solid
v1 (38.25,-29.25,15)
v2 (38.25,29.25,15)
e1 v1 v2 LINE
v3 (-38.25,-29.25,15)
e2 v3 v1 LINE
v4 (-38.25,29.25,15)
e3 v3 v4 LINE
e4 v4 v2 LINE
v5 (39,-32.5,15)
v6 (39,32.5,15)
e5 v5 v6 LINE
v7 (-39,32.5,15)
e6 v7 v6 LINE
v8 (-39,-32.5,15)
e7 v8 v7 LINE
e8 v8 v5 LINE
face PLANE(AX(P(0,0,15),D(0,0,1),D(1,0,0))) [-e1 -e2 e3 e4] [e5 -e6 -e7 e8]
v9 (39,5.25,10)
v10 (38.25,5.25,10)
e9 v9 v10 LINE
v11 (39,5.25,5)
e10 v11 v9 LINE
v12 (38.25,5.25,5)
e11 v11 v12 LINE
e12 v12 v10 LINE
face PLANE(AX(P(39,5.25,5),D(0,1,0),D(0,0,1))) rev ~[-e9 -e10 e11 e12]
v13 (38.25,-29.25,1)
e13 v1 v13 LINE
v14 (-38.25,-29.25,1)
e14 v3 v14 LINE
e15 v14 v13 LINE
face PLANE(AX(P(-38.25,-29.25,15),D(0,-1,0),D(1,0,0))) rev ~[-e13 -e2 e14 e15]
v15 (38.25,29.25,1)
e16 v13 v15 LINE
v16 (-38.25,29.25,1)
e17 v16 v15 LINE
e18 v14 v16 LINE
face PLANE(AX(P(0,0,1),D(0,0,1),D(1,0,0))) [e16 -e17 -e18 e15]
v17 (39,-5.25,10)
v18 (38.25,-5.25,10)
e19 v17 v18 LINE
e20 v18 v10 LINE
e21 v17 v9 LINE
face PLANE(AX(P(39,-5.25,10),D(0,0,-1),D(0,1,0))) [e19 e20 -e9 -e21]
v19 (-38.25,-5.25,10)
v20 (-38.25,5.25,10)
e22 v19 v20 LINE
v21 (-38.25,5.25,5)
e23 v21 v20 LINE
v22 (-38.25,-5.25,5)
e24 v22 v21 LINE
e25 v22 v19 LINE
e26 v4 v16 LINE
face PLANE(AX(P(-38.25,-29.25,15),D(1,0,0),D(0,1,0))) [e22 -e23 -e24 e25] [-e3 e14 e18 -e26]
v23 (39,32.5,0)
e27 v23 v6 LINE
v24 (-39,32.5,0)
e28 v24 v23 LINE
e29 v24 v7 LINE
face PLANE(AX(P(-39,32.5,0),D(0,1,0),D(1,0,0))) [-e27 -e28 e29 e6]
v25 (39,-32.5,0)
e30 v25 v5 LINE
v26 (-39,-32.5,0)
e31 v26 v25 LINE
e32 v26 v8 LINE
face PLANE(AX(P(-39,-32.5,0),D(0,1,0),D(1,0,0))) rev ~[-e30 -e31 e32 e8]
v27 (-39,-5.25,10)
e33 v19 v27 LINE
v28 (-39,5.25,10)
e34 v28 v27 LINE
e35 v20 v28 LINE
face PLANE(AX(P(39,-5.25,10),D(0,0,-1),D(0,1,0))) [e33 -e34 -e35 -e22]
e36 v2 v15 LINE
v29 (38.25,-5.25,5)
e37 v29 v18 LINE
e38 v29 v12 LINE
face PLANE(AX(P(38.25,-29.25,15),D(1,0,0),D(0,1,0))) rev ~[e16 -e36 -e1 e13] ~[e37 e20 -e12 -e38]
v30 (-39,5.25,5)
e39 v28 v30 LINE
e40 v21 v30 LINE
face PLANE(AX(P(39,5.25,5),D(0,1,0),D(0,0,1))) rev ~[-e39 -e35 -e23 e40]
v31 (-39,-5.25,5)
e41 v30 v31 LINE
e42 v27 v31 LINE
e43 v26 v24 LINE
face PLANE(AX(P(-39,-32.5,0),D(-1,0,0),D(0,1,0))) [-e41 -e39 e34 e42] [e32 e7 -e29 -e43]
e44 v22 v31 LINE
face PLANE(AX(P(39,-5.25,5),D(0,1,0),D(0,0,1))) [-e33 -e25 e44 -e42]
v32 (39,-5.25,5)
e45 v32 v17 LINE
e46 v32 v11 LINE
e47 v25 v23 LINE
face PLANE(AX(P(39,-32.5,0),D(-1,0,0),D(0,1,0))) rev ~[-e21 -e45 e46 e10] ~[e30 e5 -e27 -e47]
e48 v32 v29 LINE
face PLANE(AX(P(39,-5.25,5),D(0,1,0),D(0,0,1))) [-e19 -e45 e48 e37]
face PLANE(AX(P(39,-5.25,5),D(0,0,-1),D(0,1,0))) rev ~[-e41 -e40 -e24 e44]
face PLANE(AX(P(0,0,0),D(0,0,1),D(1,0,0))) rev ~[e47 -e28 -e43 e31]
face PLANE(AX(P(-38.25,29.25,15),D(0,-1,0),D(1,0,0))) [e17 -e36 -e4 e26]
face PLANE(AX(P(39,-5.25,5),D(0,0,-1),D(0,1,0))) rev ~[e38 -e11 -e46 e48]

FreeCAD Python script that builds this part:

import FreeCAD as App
import Part
import Sketcher
from FreeCAD import Vector
Q = App.Units.Quantity


def add_polygon(sketch, points):
    """Adds a closed chain of lines whose ends are joined by coincident constraints."""
    first, n = sketch.GeometryCount, len(points)
    for a, b in zip(points, points[1:] + points[:1]):
        sketch.addGeometry(Part.LineSegment(App.Vector(*a, 0), App.Vector(*b, 0)), False)
    for i in range(n):
        sketch.addConstraint(Sketcher.Constraint("Coincident", first + i, 2, first + (i + 1) % n, 1))

doc = App.newDocument("Part")
body = doc.addObject("PartDesign::Body", "Body")

# Sketch on XY plane
sketch1 = doc.addObject("Sketcher::SketchObject", "Sketch")
body.addObject(sketch1)
sketch1.AttachmentSupport = (doc.XY_Plane, [""])
sketch1.MapMode = "FlatFace"
add_polygon(sketch1, [(-39, 32), (-39, -32), (39, -32), (39, 32)])  # lines 0-3
sketch1.addConstraint([
    Sketcher.Constraint("Vertical", 0),
    Sketcher.Constraint("Horizontal", 1),
    Sketcher.Constraint("Vertical", 2),
    Sketcher.Constraint("Horizontal", 3),
    Sketcher.Constraint("Symmetric", 0, 2, 2, 2, -1, 1),
    Sketcher.Constraint("DistanceX", 1, 1, 1, 2, Q("78 mm")),
    Sketcher.Constraint("DistanceY", 0, 2, 0, 1, Q("65 mm")),
])
pad1 = doc.addObject("PartDesign::Pad", "Pad")
body.addObject(pad1)
pad1.Profile = sketch1
pad1.Length = 15

# Sketch on XY plane
sketch2 = doc.addObject("Sketcher::SketchObject", "Sketch001")
body.addObject(sketch2)
sketch2.AttachmentSupport = (doc.XY_Plane, [""])
sketch2.MapMode = "FlatFace"
sketch2.AttachmentOffset = App.Placement(Vector(0, 0, 15), App.Rotation())
add_polygon(sketch2, [(-38, 29), (-38, -29), (38, -29), (38, 29)])  # lines 0-3
sketch2.addConstraint([
    Sketcher.Constraint("Vertical", 0),
    Sketcher.Constraint("Horizontal", 1),
    Sketcher.Constraint("Vertical", 2),
    Sketcher.Constraint("Horizontal", 3),
    Sketcher.Constraint("Symmetric", 0, 2, 2, 2, -1, 1),
    Sketcher.Constraint("DistanceX", 1, 1, 1, 2, Q("76.5 mm")),
    Sketcher.Constraint("DistanceY", 0, 2, 0, 1, Q("58.5 mm")),
])
pocket1 = doc.addObject("PartDesign::Pocket", "Pocket")
body.addObject(pocket1)
pocket1.Profile = sketch2
pocket1.Length = 14

# Sketch on YZ plane
sketch3 = doc.addObject("Sketcher::SketchObject", "Sketch002")
body.addObject(sketch3)
sketch3.AttachmentSupport = (doc.YZ_Plane, [""])
sketch3.MapMode = "FlatFace"
sketch3.AttachmentOffset = App.Placement(Vector(0, 0, 39), App.Rotation())
add_polygon(sketch3, [(-5, 10), (-5, 5), (5, 5), (5, 10)])  # lines 0-3
sketch3.addConstraint([
    Sketcher.Constraint("Vertical", 0),
    Sketcher.Constraint("Horizontal", 1),
    Sketcher.Constraint("Vertical", 2),
    Sketcher.Constraint("Horizontal", 3),
    Sketcher.Constraint("DistanceY", 0, 2, 0, 1, Q("5 mm")),
    Sketcher.Constraint("DistanceX", 1, 1, 1, 2, Q("10.5 mm")),
    Sketcher.Constraint("DistanceY", -1, 1, 0, 2, Q("5 mm")),
    Sketcher.Constraint("DistanceX", 0, 2, -1, 1, Q("5.25 mm")),
])
pocket2 = doc.addObject("PartDesign::Pocket", "Pocket001")
body.addObject(pocket2)
pocket2.Profile = sketch3
pocket2.Length = 100

doc.recompute()
